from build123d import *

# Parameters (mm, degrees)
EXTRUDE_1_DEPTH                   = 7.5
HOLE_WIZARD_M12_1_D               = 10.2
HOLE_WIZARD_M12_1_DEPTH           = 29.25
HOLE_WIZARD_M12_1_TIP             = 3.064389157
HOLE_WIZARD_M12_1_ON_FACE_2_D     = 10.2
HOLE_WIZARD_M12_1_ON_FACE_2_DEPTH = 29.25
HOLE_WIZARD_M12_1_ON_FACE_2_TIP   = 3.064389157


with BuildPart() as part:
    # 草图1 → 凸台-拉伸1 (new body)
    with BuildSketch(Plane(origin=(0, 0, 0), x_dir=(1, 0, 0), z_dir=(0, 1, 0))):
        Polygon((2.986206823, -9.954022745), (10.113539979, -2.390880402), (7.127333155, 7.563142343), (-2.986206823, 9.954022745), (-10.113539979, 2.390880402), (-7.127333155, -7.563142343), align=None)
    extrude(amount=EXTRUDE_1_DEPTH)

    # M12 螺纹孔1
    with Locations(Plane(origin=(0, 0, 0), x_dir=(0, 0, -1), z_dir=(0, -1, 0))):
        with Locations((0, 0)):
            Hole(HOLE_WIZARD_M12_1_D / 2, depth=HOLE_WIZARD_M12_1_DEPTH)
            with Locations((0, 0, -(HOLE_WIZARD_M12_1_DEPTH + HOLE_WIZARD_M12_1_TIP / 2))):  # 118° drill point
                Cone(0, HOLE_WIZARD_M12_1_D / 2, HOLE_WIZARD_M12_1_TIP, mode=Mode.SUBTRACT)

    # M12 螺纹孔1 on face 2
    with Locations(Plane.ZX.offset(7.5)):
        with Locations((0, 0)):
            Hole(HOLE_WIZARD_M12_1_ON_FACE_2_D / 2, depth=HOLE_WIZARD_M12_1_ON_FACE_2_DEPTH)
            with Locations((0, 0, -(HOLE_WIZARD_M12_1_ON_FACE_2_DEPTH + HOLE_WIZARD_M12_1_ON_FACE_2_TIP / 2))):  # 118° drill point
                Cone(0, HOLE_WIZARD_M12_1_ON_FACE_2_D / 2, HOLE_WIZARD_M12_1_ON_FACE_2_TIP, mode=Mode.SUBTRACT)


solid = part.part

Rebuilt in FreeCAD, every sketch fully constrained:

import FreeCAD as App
import Part
import Sketcher
Q = App.Units.Quantity

doc = App.newDocument("Part")
body = doc.addObject("PartDesign::Body", "Body")

sketch1 = doc.addObject("Sketcher::SketchObject", "Sketch")
body.addObject(sketch1)
sketch1.AttachmentSupport = (doc.XZ_Plane, [""])
sketch1.MapMode = "FlatFace"
sketch1.addGeometry([
    Part.LineSegment(App.Vector(3, 10, 0), App.Vector(10, 2, 0)),
    Part.LineSegment(App.Vector(10, 2, 0), App.Vector(7, -8, 0)),
    Part.LineSegment(App.Vector(7, -8, 0), App.Vector(-3, -10, 0)),
    Part.LineSegment(App.Vector(-3, -10, 0), App.Vector(-10, -2, 0)),
    Part.LineSegment(App.Vector(-10, -2, 0), App.Vector(-7, 8, 0)),
    Part.LineSegment(App.Vector(-7, 8, 0), App.Vector(3, 10, 0)),
], False)
sketch1.addConstraint([
    Sketcher.Constraint("Coincident", 0, 2, 1, 1),
    Sketcher.Constraint("Coincident", 1, 2, 2, 1),
    Sketcher.Constraint("Coincident", 2, 2, 3, 1),
    Sketcher.Constraint("Coincident", 3, 2, 4, 1),
    Sketcher.Constraint("Coincident", 4, 2, 5, 1),
    Sketcher.Constraint("Coincident", 5, 2, 0, 1),
    Sketcher.Constraint("Symmetric", 0, 2, 3, 2, -1, 1),
    Sketcher.Constraint("Symmetric", 1, 2, 4, 2, -1, 1),
    Sketcher.Constraint("Symmetric", 2, 2, 5, 2, -1, 1),
    Sketcher.Constraint("Equal", 0, 1),
    Sketcher.Constraint("Equal", 1, 2),
    Sketcher.Constraint("DistanceX", -1, 1, 0, 2, Q("10.11354 mm")),
    Sketcher.Constraint("DistanceY", -1, 1, 0, 2, Q("2.39088 mm")),
    Sketcher.Constraint("DistanceX", 2, 2, 1, 2, Q("10.11354 mm")),
    Sketcher.Constraint("DistanceY", 2, 2, 1, 2, Q("2.39088 mm")),
])
pad1 = doc.addObject("PartDesign::Pad", "Pad")
body.addObject(pad1)
pad1.Profile = sketch1
pad1.Length = 7.5
pad1.Reversed = True

sketch2 = doc.addObject("Sketcher::SketchObject", "Sketch001")
body.addObject(sketch2)
sketch2.AttachmentSupport = (doc.XZ_Plane, [""])
sketch2.MapMode = "FlatFace"
sketch2.addGeometry(Part.Circle(App.Vector(0, 0, 0), App.Vector(0, 0, 1), 5), False)
sketch2.addConstraint([
    Sketcher.Constraint("Coincident", 0, 3, -1, 1),
    Sketcher.Constraint("Diameter", 0, Q("10.2 mm")),
])
doc.recompute()
hole = doc.addObject("PartDesign::Hole", "Hole")
body.addObject(hole)
hole.Profile = sketch2
hole.ThreadType = "None"
hole.Diameter = 10.2
hole.DepthType = "Dimension"
hole.Depth = 29.25
hole.DrillPoint = "Angled"
hole.DrillPointAngle = 118

sketch3 = doc.addObject("Sketcher::SketchObject", "Sketch002")
body.addObject(sketch3)
sketch3.AttachmentSupport = (doc.XZ_Plane, [""])
sketch3.MapMode = "FlatFace"
sketch3.AttachmentOffset = App.Placement(App.Vector(0, 0, -7.5), App.Rotation())
sketch3.addGeometry(Part.Circle(App.Vector(0, 0, 0), App.Vector(0, 0, 1), 5), False)
sketch3.addConstraint([
    Sketcher.Constraint("Coincident", 0, 3, -1, 1),
    Sketcher.Constraint("Diameter", 0, Q("10.2 mm")),
])
doc.recompute()
hole2 = doc.addObject("PartDesign::Hole", "Hole001")
body.addObject(hole2)
hole2.Profile = sketch3
hole2.ThreadType = "None"
hole2.Diameter = 10.2
hole2.DepthType = "Dimension"
hole2.Depth = 29.25
hole2.DrillPoint = "Angled"
hole2.DrillPointAngle = 118
hole2.Reversed = True

doc.recompute()
